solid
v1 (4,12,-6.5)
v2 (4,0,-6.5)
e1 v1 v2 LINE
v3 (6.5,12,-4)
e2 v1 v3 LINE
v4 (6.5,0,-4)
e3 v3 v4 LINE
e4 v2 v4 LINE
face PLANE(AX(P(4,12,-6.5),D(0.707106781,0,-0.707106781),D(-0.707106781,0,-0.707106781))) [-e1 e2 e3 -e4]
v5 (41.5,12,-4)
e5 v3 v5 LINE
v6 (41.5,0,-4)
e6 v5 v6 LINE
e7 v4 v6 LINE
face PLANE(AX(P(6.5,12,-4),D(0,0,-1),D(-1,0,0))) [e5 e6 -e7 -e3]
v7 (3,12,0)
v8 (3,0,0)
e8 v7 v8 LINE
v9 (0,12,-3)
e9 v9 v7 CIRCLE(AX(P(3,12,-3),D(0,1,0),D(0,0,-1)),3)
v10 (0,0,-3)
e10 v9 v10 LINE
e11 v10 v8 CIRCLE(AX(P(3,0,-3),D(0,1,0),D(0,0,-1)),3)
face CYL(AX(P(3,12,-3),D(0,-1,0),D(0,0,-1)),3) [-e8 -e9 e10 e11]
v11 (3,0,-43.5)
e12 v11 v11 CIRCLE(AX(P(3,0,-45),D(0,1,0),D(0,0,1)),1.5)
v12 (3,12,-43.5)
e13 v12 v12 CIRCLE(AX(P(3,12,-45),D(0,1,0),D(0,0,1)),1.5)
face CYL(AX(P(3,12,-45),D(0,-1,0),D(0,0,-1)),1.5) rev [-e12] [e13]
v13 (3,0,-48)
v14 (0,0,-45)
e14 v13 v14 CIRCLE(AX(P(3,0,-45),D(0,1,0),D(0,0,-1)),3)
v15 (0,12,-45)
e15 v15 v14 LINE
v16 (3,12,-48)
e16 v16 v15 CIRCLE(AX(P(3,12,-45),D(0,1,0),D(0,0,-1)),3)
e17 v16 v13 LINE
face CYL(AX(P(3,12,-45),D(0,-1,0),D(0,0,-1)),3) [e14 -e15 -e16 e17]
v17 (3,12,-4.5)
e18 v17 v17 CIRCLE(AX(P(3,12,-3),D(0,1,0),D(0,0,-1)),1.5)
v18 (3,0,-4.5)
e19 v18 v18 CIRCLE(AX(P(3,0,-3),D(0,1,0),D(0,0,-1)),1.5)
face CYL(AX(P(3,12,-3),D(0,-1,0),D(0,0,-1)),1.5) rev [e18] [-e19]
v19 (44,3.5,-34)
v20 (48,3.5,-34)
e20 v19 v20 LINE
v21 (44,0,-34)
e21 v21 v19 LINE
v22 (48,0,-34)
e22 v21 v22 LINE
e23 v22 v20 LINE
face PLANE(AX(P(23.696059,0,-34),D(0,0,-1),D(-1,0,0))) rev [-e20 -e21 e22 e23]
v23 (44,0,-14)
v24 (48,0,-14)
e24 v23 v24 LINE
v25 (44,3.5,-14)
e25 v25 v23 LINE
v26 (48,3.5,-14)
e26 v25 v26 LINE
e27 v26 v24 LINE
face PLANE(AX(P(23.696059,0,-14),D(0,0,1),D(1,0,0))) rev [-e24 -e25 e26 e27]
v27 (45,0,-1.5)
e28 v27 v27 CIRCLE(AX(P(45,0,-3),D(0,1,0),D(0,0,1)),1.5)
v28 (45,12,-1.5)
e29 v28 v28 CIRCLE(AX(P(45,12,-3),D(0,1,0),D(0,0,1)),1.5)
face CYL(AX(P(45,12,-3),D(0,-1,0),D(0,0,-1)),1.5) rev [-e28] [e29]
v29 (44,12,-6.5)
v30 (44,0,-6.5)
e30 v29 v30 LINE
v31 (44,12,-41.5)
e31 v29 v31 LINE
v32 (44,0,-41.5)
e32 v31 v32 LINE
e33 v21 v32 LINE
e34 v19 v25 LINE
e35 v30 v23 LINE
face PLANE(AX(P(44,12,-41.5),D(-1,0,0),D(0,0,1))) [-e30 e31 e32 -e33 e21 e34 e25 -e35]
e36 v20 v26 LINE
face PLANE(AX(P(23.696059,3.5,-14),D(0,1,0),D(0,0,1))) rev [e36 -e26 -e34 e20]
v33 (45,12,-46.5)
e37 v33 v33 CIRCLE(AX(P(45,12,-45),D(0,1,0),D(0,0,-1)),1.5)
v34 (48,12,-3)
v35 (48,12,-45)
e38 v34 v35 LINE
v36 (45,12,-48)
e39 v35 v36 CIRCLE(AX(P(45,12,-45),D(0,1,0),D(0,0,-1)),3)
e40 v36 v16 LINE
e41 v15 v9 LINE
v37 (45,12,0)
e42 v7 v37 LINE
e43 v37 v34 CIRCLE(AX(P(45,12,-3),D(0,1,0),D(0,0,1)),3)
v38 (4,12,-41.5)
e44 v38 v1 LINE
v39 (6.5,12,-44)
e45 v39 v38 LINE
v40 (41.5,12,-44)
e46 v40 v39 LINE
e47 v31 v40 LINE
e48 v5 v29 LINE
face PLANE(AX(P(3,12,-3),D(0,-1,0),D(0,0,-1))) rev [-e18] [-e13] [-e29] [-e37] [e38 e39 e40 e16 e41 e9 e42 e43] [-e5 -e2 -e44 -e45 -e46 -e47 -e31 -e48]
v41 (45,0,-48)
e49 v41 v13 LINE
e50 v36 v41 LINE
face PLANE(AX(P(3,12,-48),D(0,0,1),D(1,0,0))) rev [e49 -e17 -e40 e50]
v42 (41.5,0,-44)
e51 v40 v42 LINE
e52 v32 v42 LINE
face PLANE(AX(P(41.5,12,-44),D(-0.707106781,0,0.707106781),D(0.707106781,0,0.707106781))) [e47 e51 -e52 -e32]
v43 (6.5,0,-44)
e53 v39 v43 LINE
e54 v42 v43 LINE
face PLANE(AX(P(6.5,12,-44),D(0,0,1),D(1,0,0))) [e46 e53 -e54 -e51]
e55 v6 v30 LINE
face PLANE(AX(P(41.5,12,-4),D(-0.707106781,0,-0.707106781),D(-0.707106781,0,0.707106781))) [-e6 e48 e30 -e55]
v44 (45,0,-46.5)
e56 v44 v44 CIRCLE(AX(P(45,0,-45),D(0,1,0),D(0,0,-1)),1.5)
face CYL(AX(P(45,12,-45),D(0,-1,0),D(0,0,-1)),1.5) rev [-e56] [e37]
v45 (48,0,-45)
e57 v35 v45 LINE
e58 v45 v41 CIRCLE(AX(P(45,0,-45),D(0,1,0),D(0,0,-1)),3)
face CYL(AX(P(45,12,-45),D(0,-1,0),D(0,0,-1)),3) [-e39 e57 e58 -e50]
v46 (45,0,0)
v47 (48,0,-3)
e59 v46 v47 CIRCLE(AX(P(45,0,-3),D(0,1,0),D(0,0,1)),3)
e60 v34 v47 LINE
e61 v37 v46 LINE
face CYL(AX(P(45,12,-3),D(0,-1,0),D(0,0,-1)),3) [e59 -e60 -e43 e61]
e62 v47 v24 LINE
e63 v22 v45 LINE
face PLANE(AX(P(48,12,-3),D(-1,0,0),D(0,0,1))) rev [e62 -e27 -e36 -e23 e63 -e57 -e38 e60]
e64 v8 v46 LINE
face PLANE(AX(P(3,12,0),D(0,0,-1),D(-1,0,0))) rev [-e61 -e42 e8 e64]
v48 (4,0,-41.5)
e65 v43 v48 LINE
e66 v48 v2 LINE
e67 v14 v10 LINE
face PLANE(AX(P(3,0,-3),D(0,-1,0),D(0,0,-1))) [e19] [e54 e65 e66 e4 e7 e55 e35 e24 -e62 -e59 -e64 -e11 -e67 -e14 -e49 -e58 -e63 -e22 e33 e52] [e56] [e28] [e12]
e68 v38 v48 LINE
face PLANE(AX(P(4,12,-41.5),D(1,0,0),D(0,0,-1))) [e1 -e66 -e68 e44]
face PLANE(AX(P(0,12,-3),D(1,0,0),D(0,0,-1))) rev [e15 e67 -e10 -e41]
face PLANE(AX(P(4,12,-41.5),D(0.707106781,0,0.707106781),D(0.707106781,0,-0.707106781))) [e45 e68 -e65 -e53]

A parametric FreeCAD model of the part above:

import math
import FreeCAD as App
import Part
import Sketcher
from FreeCAD import Vector
Q = App.Units.Quantity


def add_polygon(sketch, points):
    """Adds a closed chain of lines whose ends are joined by coincident constraints."""
    first, n = sketch.GeometryCount, len(points)
    for a, b in zip(points, points[1:] + points[:1]):
        sketch.addGeometry(Part.LineSegment(App.Vector(*a, 0), App.Vector(*b, 0)), False)
    for i in range(n):
        sketch.addConstraint(Sketcher.Constraint("Coincident", first + i, 2, first + (i + 1) % n, 1))

doc = App.newDocument("Part")
body = doc.addObject("PartDesign::Body", "Body")

# Sketch on XZ plane
sketch1 = doc.addObject("Sketcher::SketchObject", "Sketch")
body.addObject(sketch1)
sketch1.AttachmentSupport = (doc.XZ_Plane, [""])
sketch1.MapMode = "FlatFace"
sketch1.addGeometry(Part.LineSegment(Vector(3, 0, 0), Vector(45, 0, 0)), False)  # 0
sketch1.addGeometry(Part.ArcOfCircle(Part.Circle(Vector(45, -3, 0), Vector(0, 0, 1), 3), math.radians(0), math.radians(90)), False)  # 1
sketch1.addGeometry(Part.LineSegment(Vector(48, -3, 0), Vector(48, -45, 0)), False)  # 2
sketch1.addGeometry(Part.ArcOfCircle(Part.Circle(Vector(45, -45, 0), Vector(0, 0, 1), 3), math.radians(-90), math.radians(0)), False)  # 3
sketch1.addGeometry(Part.LineSegment(Vector(45, -48, 0), Vector(3, -48, 0)), False)  # 4
sketch1.addGeometry(Part.ArcOfCircle(Part.Circle(Vector(3, -45, 0), Vector(0, 0, 1), 3), math.radians(180), math.radians(270)), False)  # 5
sketch1.addGeometry(Part.LineSegment(Vector(0, -45, 0), Vector(0, -3, 0)), False)  # 6
sketch1.addGeometry(Part.ArcOfCircle(Part.Circle(Vector(3, -3, 0), Vector(0, 0, 1), 3), math.radians(90), math.radians(180)), False)  # 7
sketch1.addGeometry(Part.Circle(Vector(3, -3, 0), Vector(0, 0, 1), 1.5), False)  # 8
sketch1.addGeometry(Part.Circle(Vector(45, -3, 0), Vector(0, 0, 1), 1.5), False)  # 9
sketch1.addGeometry(Part.Circle(Vector(3, -45, 0), Vector(0, 0, 1), 1.5), False)  # 10
add_polygon(sketch1, [(4, -6.5), (4, -41.5), (6.5, -44), (41.5, -44), (44, -41.5), (44, -6.5), (41.5, -4), (6.5, -4)])  # lines 11-18
sketch1.addGeometry(Part.Circle(Vector(45, -45, 0), Vector(0, 0, 1), 1.5), False)  # 19
sketch1.addConstraint([
    Sketcher.Constraint("Tangent", 0, 2, 1, 2),
    Sketcher.Constraint("Tangent", 1, 1, 2, 1),
    Sketcher.Constraint("Tangent", 2, 2, 3, 2),
    Sketcher.Constraint("Tangent", 3, 1, 4, 1),
    Sketcher.Constraint("Tangent", 4, 2, 5, 2),
    Sketcher.Constraint("Tangent", 5, 1, 6, 1),
    Sketcher.Constraint("Tangent", 6, 2, 7, 2),
    Sketcher.Constraint("Tangent", 7, 1, 0, 1),
    Sketcher.Constraint("Horizontal", 0),
    Sketcher.Constraint("Vertical", 2),
    Sketcher.Constraint("Horizontal", 4),
    Sketcher.Constraint("Vertical", 6),
    Sketcher.Constraint("Vertical", 11),
    Sketcher.Constraint("Horizontal", 13),
    Sketcher.Constraint("Vertical", 15),
    Sketcher.Constraint("Horizontal", 17),
    Sketcher.Constraint("Coincident", 8, 3, 7, 3),
    Sketcher.Constraint("Coincident", 9, 3, 1, 3),
    Sketcher.Constraint("Coincident", 10, 3, 5, 3),
    Sketcher.Constraint("Coincident", 19, 3, 3, 3),
    Sketcher.Constraint("Equal", 1, 3),
    Sketcher.Constraint("Equal", 3, 5),
    Sketcher.Constraint("Equal", 5, 7),
    Sketcher.Constraint("Equal", 8, 9),
    Sketcher.Constraint("Equal", 9, 10),
    Sketcher.Constraint("Equal", 10, 19),
    Sketcher.Constraint("PointOnObject", 0, 2, -1),
    Sketcher.Constraint("PointOnObject", 5, 1, -2),
    Sketcher.Constraint("Perpendicular", 12, 14),
    Sketcher.Constraint("Perpendicular", 14, 16),
    Sketcher.Constraint("Perpendicular", 16, 18),
    Sketcher.Constraint("Horizontal", 11, 2, 14, 2),
    Sketcher.Constraint("Horizontal", 15, 2, 18, 2),
    Sketcher.Constraint("Vertical", 13, 2, 16, 2),
    Sketcher.Constraint("Vertical", 12, 2, 17, 2),
    Sketcher.Constraint("Equal", 4, 2),
    Sketcher.Constraint("Equal", 17, 11),
    Sketcher.Constraint("Diameter", 8, Q("3 mm")),
    Sketcher.Constraint("Radius", 1, Q("3 mm")),
    Sketcher.Constraint("DistanceX", 0, 1, 0, 2, Q("42 mm")),
    Sketcher.Constraint("DistanceX", 13, 1, 13, 2, Q("35 mm")),
    Sketcher.Constraint("DistanceX", -1, 1, 11, 2, Q("4 mm")),
    Sketcher.Constraint("DistanceY", 12, 2, -1, 1, Q("44 mm")),
    Sketcher.Constraint("DistanceX", -1, 1, 14, 2, Q("44 mm")),
])
pad1 = doc.addObject("PartDesign::Pad", "Pad")
body.addObject(pad1)
pad1.Profile = sketch1
pad1.Length = 12
pad1.Reversed = True

# Sketch on YZ plane
sketch2 = doc.addObject("Sketcher::SketchObject", "Sketch001")
body.addObject(sketch2)
sketch2.AttachmentSupport = (doc.YZ_Plane, [""])
sketch2.MapMode = "FlatFace"
sketch2.AttachmentOffset = App.Placement(Vector(0, 0, 48), App.Rotation())
add_polygon(sketch2, [(3.5, -14), (0, -14), (0, -34), (3.5, -34)])  # lines 0-3
sketch2.addConstraint([
    Sketcher.Constraint("Horizontal", 0),
    Sketcher.Constraint("Vertical", 1),
    Sketcher.Constraint("Horizontal", 2),
    Sketcher.Constraint("Vertical", 3),
    Sketcher.Constraint("PointOnObject", 0, 2, -2),
    Sketcher.Constraint("DistanceY", 1, 2, 1, 1, Q("20 mm")),
    Sketcher.Constraint("DistanceX", 0, 2, 0, 1, Q("3.5 mm")),
    Sketcher.Constraint("DistanceY", 0, 2, -1, 1, Q("14 mm")),
])
pocket1 = doc.addObject("PartDesign::Pocket", "Pocket")
body.addObject(pocket1)
pocket1.Profile = sketch2
pocket1.Length = 4

doc.recompute()
